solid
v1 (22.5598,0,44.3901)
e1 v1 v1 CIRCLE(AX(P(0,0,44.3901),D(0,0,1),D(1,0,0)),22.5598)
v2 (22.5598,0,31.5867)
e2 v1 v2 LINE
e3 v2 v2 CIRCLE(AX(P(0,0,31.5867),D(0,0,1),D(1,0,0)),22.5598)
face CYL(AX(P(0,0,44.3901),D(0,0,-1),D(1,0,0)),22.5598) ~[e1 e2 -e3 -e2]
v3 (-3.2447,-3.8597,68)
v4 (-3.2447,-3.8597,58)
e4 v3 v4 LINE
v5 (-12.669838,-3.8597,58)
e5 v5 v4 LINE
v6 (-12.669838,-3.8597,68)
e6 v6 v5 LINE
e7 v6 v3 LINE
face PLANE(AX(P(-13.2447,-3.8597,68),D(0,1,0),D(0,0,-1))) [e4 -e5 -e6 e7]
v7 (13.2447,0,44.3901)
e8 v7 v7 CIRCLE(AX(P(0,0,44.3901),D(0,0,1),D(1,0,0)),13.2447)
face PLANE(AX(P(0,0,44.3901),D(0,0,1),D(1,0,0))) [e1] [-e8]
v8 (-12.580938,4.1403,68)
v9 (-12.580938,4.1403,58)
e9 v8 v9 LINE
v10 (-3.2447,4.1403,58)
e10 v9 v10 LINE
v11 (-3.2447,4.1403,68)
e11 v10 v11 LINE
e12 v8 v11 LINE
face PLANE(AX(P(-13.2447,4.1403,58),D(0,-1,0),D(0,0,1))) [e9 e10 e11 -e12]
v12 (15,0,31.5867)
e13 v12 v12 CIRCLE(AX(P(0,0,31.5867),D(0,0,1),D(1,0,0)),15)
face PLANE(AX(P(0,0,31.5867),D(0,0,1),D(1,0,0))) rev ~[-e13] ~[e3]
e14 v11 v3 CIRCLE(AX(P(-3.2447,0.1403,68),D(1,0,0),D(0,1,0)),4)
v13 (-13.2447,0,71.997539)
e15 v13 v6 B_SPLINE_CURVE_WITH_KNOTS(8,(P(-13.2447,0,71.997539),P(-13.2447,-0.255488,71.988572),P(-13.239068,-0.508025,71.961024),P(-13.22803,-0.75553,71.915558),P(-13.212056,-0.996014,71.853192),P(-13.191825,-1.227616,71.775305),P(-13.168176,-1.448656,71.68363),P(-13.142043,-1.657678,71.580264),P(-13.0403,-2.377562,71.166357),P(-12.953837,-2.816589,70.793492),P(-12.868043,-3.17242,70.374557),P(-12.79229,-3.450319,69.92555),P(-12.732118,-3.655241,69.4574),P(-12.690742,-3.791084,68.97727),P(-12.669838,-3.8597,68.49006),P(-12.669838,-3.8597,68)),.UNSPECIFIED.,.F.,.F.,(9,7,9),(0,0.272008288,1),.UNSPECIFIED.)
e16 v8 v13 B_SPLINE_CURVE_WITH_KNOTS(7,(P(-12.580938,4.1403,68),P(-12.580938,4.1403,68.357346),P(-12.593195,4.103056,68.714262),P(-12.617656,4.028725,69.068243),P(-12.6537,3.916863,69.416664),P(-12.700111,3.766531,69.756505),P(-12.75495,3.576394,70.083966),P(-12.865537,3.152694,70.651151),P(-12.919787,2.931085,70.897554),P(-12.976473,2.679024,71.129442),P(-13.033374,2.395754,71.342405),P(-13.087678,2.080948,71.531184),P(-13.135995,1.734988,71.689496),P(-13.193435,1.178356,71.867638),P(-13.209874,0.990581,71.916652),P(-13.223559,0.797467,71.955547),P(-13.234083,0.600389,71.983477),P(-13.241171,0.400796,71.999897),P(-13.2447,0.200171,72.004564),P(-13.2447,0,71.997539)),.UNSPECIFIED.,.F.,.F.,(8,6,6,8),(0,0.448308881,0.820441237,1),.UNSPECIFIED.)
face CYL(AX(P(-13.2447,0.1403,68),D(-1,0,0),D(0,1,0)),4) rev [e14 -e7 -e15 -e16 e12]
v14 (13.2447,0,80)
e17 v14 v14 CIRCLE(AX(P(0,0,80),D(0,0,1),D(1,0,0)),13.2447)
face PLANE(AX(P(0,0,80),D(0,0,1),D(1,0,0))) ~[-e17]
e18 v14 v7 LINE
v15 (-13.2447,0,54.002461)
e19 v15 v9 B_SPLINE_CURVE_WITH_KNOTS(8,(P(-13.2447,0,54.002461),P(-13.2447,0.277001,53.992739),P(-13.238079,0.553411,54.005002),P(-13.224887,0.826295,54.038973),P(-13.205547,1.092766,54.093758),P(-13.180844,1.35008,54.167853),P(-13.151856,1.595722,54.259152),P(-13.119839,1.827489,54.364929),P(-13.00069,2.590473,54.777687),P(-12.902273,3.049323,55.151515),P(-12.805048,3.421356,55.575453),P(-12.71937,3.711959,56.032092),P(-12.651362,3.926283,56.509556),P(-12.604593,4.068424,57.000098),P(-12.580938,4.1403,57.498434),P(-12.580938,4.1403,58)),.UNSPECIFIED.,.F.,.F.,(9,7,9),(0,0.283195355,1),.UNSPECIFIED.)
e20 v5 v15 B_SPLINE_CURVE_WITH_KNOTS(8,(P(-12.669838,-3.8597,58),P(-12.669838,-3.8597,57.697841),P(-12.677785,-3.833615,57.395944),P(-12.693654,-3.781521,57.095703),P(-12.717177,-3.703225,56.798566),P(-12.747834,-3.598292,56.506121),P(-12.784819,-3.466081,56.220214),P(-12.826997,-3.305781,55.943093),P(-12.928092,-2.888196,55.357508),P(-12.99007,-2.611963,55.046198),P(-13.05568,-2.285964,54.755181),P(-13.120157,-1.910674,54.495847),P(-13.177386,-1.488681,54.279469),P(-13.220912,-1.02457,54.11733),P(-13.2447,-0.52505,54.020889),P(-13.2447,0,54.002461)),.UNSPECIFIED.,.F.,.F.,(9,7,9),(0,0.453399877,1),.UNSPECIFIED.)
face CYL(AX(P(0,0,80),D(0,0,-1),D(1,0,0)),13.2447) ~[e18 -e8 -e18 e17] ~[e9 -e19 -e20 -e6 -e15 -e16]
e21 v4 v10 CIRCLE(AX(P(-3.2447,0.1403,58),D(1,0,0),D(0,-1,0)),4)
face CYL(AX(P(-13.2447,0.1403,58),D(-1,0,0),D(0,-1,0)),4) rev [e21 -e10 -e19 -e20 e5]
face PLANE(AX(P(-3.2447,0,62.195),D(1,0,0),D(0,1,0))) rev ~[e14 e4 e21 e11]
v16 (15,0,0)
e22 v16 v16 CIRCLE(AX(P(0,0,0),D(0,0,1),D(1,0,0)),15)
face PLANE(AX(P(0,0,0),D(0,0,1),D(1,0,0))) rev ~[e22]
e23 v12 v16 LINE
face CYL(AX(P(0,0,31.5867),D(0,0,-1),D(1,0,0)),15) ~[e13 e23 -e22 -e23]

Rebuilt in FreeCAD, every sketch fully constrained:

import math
import FreeCAD as App
import Part
import Sketcher
from FreeCAD import Vector
Q = App.Units.Quantity

doc = App.newDocument("Part")
body = doc.addObject("PartDesign::Body", "Body")

# Sketch on XZ plane
sketch1 = doc.addObject("Sketcher::SketchObject", "Sketch")
body.addObject(sketch1)
sketch1.AttachmentSupport = (doc.XZ_Plane, [""])
sketch1.MapMode = "FlatFace"
sketch1.addGeometry([
    Part.LineSegment(Vector(15, 0, 0), Vector(0, 0, 0)),  # 0
    Part.LineSegment(Vector(0, 0, 0), Vector(0, 80, 0)),  # 1
    Part.LineSegment(Vector(0, 80, 0), Vector(13, 80, 0)),  # 2
    Part.LineSegment(Vector(13, 80, 0), Vector(13, 44, 0)),  # 3
    Part.LineSegment(Vector(13, 44, 0), Vector(23, 44, 0)),  # 4
    Part.LineSegment(Vector(23, 44, 0), Vector(23, 32, 0)),  # 5
    Part.LineSegment(Vector(23, 32, 0), Vector(15, 32, 0)),  # 6
    Part.LineSegment(Vector(15, 32, 0), Vector(15, 0, 0)),  # 7
], False)
sketch1.addConstraint([
    Sketcher.Constraint("Coincident", 0, 2, 1, 1),
    Sketcher.Constraint("Coincident", 1, 2, 2, 1),
    Sketcher.Constraint("Coincident", 2, 2, 3, 1),
    Sketcher.Constraint("Coincident", 3, 2, 4, 1),
    Sketcher.Constraint("Coincident", 4, 2, 5, 1),
    Sketcher.Constraint("Coincident", 5, 2, 6, 1),
    Sketcher.Constraint("Coincident", 6, 2, 7, 1),
    Sketcher.Constraint("Coincident", 7, 2, 0, 1),
    Sketcher.Constraint("Horizontal", 0),
    Sketcher.Constraint("Vertical", 1),
    Sketcher.Constraint("Horizontal", 2),
    Sketcher.Constraint("Vertical", 3),
    Sketcher.Constraint("Horizontal", 4),
    Sketcher.Constraint("Vertical", 5),
    Sketcher.Constraint("Horizontal", 6),
    Sketcher.Constraint("Vertical", 7),
    Sketcher.Constraint("Coincident", 0, 2, -1, 1),
    Sketcher.Constraint("DistanceY", 1, 1, 1, 2, Q("80 mm")),
    Sketcher.Constraint("DistanceX", 0, 2, 0, 1, Q("15 mm")),
    Sketcher.Constraint("DistanceY", 3, 2, 3, 1, Q("35.61 mm")),
    Sketcher.Constraint("DistanceX", 4, 1, 4, 2, Q("9.315 mm")),
    Sketcher.Constraint("DistanceX", 2, 1, 2, 2, Q("13.2447 mm")),
    Sketcher.Constraint("DistanceY", 5, 2, 5, 1, Q("12.8034 mm")),
])
revolution = doc.addObject("PartDesign::Revolution", "Revolution")
body.addObject(revolution)
revolution.Profile = sketch1
revolution.ReferenceAxis = (sketch1, ["V_Axis"])
revolution.Angle = 360

# Sketch on YZ plane
sketch2 = doc.addObject("Sketcher::SketchObject", "Sketch001")
body.addObject(sketch2)
sketch2.AttachmentSupport = (doc.YZ_Plane, [""])
sketch2.MapMode = "FlatFace"
sketch2.AttachmentOffset = App.Placement(Vector(0, 0, -13.2447), App.Rotation())
sketch2.addGeometry([
    Part.ArcOfCircle(Part.Circle(Vector(0.1, 68, 0), Vector(0, 0, 1), 4), math.radians(0), math.radians(180)),
    Part.LineSegment(Vector(-3.9, 68, 0), Vector(-3.9, 58, 0)),
    Part.ArcOfCircle(Part.Circle(Vector(0.1, 58, 0), Vector(0, 0, 1), 4), math.radians(180), math.radians(360)),
    Part.LineSegment(Vector(4.1, 58, 0), Vector(4.1, 68, 0)),
], False)
sketch2.addConstraint([
    Sketcher.Constraint("Tangent", 0, 2, 1, 1),
    Sketcher.Constraint("Tangent", 1, 2, 2, 1),
    Sketcher.Constraint("Tangent", 2, 2, 3, 1),
    Sketcher.Constraint("Tangent", 3, 2, 0, 1),
    Sketcher.Constraint("Vertical", 1),
    Sketcher.Constraint("Vertical", 3),
    Sketcher.Constraint("Radius", 0, Q("4 mm")),
    Sketcher.Constraint("DistanceY", 1, 2, 1, 1, Q("10 mm")),
    Sketcher.Constraint("DistanceY", -1, 1, 0, 3, Q("68 mm")),
    Sketcher.Constraint("DistanceX", -1, 1, 0, 3, Q("0.1403 mm")),
])
pocket1 = doc.addObject("PartDesign::Pocket", "Pocket")
body.addObject(pocket1)
pocket1.Profile = sketch2
pocket1.Length = 10
pocket1.Reversed = True

doc.recompute()
